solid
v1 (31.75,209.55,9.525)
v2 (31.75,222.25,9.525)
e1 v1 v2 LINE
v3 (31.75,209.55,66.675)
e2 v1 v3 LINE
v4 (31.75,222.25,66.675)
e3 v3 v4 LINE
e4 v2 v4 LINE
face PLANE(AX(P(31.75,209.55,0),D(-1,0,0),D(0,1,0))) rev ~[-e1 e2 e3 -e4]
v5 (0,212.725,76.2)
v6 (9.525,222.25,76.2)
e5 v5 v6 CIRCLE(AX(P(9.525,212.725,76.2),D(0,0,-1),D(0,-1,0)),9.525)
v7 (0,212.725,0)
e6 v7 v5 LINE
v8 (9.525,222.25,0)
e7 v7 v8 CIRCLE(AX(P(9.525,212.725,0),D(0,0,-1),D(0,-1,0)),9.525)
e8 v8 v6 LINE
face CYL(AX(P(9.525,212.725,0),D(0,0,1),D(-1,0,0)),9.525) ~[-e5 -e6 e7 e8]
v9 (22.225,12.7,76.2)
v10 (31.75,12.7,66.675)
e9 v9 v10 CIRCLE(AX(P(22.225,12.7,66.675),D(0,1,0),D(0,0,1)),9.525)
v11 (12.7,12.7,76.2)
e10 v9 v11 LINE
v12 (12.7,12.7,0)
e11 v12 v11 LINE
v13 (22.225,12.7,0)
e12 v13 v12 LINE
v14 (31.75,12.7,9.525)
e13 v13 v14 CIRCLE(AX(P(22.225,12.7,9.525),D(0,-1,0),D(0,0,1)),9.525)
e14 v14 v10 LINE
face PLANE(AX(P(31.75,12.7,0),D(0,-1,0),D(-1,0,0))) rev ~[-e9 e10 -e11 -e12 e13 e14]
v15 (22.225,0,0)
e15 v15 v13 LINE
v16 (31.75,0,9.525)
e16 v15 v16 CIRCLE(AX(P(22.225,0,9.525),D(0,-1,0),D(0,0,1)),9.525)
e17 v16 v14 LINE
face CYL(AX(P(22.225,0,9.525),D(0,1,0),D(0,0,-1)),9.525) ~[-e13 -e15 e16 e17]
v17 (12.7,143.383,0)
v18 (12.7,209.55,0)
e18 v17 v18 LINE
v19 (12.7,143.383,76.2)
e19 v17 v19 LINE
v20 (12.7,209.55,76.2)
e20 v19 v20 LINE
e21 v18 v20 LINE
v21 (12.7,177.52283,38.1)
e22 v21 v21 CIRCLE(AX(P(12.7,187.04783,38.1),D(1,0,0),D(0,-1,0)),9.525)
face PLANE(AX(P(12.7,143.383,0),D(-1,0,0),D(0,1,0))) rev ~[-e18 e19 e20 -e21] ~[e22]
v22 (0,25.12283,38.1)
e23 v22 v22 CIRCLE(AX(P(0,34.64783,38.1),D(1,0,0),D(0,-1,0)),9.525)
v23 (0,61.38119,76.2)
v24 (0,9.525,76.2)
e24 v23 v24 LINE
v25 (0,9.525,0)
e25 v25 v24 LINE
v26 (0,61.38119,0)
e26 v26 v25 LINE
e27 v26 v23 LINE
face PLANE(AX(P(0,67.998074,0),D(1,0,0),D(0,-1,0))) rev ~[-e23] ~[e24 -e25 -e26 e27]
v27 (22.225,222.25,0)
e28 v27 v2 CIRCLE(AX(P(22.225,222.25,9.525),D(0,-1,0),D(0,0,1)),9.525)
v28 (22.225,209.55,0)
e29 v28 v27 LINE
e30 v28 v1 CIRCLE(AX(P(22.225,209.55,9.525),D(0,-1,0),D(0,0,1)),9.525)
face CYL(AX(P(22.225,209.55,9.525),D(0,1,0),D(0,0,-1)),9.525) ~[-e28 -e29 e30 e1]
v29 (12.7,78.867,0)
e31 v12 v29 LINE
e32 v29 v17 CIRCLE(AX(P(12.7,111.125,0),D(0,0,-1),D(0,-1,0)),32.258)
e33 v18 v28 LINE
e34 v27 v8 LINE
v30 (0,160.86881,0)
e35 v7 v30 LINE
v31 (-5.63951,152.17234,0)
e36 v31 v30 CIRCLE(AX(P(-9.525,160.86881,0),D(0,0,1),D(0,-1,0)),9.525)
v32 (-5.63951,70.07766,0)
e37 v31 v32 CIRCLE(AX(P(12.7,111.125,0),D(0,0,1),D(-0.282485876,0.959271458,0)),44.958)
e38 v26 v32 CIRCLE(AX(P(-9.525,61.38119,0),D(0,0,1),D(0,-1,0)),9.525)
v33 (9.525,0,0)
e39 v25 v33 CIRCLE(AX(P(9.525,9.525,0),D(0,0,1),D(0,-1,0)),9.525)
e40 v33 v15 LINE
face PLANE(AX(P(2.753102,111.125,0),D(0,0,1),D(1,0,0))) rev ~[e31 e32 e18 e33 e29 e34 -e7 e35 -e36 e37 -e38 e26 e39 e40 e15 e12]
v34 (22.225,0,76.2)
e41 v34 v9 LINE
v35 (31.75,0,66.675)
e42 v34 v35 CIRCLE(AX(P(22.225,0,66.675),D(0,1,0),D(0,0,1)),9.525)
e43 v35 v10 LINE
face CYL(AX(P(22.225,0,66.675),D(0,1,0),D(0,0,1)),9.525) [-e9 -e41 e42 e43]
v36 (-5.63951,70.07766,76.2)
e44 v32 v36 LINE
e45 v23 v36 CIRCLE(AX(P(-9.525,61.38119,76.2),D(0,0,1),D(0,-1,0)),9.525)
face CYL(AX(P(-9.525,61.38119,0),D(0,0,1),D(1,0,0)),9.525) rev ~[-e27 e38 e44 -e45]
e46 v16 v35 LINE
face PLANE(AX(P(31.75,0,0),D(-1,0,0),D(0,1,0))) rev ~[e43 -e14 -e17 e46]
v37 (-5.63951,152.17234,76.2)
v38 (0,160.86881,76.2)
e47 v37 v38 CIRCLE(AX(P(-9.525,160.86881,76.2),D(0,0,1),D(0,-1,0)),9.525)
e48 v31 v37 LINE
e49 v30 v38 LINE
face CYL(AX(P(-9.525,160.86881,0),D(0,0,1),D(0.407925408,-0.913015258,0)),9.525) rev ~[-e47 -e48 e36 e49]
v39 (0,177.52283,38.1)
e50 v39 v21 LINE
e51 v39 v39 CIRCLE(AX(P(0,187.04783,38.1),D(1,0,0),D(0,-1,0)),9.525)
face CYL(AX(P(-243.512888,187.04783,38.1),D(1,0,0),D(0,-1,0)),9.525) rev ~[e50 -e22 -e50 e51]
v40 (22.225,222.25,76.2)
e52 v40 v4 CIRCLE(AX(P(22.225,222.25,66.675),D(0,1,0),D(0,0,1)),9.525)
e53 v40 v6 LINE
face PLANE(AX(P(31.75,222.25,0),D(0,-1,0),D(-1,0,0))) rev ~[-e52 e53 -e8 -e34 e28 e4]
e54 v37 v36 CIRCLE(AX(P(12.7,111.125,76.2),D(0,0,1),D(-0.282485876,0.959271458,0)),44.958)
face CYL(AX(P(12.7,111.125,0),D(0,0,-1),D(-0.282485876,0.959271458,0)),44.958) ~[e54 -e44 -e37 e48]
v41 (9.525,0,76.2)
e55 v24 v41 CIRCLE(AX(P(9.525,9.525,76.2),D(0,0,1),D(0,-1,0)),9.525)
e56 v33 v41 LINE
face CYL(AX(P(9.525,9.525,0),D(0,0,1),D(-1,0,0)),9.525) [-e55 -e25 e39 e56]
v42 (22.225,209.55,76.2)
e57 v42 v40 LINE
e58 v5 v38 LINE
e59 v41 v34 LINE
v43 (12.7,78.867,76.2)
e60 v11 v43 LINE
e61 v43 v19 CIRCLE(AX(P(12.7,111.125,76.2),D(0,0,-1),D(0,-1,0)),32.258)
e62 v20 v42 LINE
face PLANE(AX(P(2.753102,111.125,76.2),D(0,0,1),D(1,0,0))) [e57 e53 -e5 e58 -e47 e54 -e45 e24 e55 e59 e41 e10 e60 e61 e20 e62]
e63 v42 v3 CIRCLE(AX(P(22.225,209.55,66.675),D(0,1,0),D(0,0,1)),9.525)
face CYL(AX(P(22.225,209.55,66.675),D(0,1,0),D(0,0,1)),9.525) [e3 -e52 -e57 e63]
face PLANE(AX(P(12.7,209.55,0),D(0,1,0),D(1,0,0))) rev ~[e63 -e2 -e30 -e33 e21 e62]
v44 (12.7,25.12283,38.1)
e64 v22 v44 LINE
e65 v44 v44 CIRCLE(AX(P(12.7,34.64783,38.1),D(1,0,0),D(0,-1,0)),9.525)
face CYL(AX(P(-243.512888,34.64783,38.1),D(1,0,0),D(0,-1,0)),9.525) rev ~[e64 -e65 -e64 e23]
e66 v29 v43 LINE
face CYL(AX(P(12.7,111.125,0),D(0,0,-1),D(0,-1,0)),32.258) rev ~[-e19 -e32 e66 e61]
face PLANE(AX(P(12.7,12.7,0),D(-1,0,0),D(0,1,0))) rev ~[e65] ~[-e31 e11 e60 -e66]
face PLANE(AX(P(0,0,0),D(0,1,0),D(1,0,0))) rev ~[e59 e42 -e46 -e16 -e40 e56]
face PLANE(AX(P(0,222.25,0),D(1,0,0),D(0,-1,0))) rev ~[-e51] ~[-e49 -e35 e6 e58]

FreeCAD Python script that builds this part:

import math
import FreeCAD as App
import Part
import Sketcher
from FreeCAD import Vector
Q = App.Units.Quantity


def edges_at(feature, points):
    """Names of the edges that pass closest to the given points."""
    edges = feature.Shape.Edges
    near = lambda p: min(range(len(edges)), key=lambda i: edges[i].distToShape(Part.Vertex(*p))[0])
    return sorted({f"Edge{near(p) + 1}" for p in points})

doc = App.newDocument("Part")
params = doc.addObject("Spreadsheet::Sheet", "Params")
for row, (alias, value) in enumerate([
    ("sketch1_radius", "1.27 in"),
    ("sketch1_radius2", "1.77 in"),
    ("sketch1_height", "0.5 in"),
    ("sketch1_width", "1.25 in"),
    ("sketch1_width2", "0.75 in"),
    ("pad1_length", "3 in"),
    ("sketch2_diameter", "0.75 in"),
    ("hole_diameter", "0.75 in"),
    ("fillet_radius", "0.375 in"),
], start=1):
    params.set(f"A{row}", alias)
    params.set(f"B{row}", "=" + value)
    params.setAlias(f"B{row}", alias)

body = doc.addObject("PartDesign::Body", "Body")

# Sketch on XY plane
sketch1 = doc.addObject("Sketcher::SketchObject", "Sketch")
body.addObject(sketch1)
sketch1.AttachmentSupport = (doc.XY_Plane, [""])
sketch1.MapMode = "FlatFace"
sketch1.addGeometry([
    Part.LineSegment(Vector(0, 68, 0), Vector(0, 0, 0)),  # 0
    Part.LineSegment(Vector(0, 0, 0), Vector(32, 0, 0)),  # 1
    Part.LineSegment(Vector(32, 0, 0), Vector(32, 13, 0)),  # 2
    Part.LineSegment(Vector(32, 13, 0), Vector(13, 13, 0)),  # 3
    Part.LineSegment(Vector(13, 13, 0), Vector(13, 79, 0)),  # 4
    Part.ArcOfCircle(Part.Circle(Vector(13, 111, 0), Vector(0, 0, 1), 32), math.radians(90), math.radians(270)),  # 5
    Part.LineSegment(Vector(13, 143, 0), Vector(13, 210, 0)),  # 6
    Part.LineSegment(Vector(13, 210, 0), Vector(32, 210, 0)),  # 7
    Part.LineSegment(Vector(32, 210, 0), Vector(32, 222, 0)),  # 8
    Part.LineSegment(Vector(32, 222, 0), Vector(0, 222, 0)),  # 9
    Part.LineSegment(Vector(0, 222, 0), Vector(0, 154, 0)),  # 10
    Part.ArcOfCircle(Part.Circle(Vector(13, 111, 0), Vector(0, 0, 1), 45), math.radians(106), math.radians(254)),  # 11
], False)
sketch1.addConstraint([
    Sketcher.Constraint("Coincident", 0, 2, 1, 1),
    Sketcher.Constraint("Coincident", 1, 2, 2, 1),
    Sketcher.Constraint("Coincident", 2, 2, 3, 1),
    Sketcher.Constraint("Coincident", 3, 2, 4, 1),
    Sketcher.Constraint("Coincident", 4, 2, 5, 2),
    Sketcher.Constraint("Coincident", 5, 1, 6, 1),
    Sketcher.Constraint("Coincident", 6, 2, 7, 1),
    Sketcher.Constraint("Coincident", 7, 2, 8, 1),
    Sketcher.Constraint("Coincident", 8, 2, 9, 1),
    Sketcher.Constraint("Coincident", 9, 2, 10, 1),
    Sketcher.Constraint("Coincident", 10, 2, 11, 1),
    Sketcher.Constraint("Coincident", 11, 2, 0, 1),
    Sketcher.Constraint("Vertical", 0),
    Sketcher.Constraint("Horizontal", 1),
    Sketcher.Constraint("Vertical", 2),
    Sketcher.Constraint("Horizontal", 3),
    Sketcher.Constraint("Vertical", 4),
    Sketcher.Constraint("Vertical", 6),
    Sketcher.Constraint("Horizontal", 7),
    Sketcher.Constraint("Vertical", 8),
    Sketcher.Constraint("Horizontal", 9),
    Sketcher.Constraint("Vertical", 10),
    Sketcher.Constraint("Coincident", 0, 2, -1, 1),
    Sketcher.Constraint("Coincident", 11, 3, 5, 3),
    Sketcher.Constraint("PointOnObject", 9, 2, -2),
    Sketcher.Constraint("Vertical", 11, 3, 3, 2),
    Sketcher.Constraint("Vertical", 4, 2, 5, 1),
    Sketcher.Constraint("Vertical", 2, 2, 7, 2),
    Sketcher.Constraint("Equal", 4, 6),
    Sketcher.Constraint("Equal", 2, 8),
    Sketcher.Constraint("Radius", 5, Q("1.27 in")),
    Sketcher.Constraint("Radius", 11, Q("1.77 in")),
    Sketcher.Constraint("DistanceY", 2, 1, 2, 2, Q("0.5 in")),
    Sketcher.Constraint("DistanceX", 1, 1, 1, 2, Q("1.25 in")),
    Sketcher.Constraint("DistanceX", 3, 2, 3, 1, Q("0.75 in")),
    Sketcher.Constraint("DistanceY", 4, 1, 4, 2, Q("2.605 in")),
])
sketch1.setExpression("Constraints[30]", "Params.sketch1_radius")
sketch1.setExpression("Constraints[31]", "Params.sketch1_radius2")
sketch1.setExpression("Constraints[32]", "Params.sketch1_height")
sketch1.setExpression("Constraints[33]", "Params.sketch1_width")
sketch1.setExpression("Constraints[34]", "Params.sketch1_width2")
pad1 = doc.addObject("PartDesign::Pad", "Pad")
body.addObject(pad1)
pad1.Profile = sketch1
pad1.setExpression("Length", "Params.pad1_length")

# Sketch on YZ plane
sketch2 = doc.addObject("Sketcher::SketchObject", "Sketch001")
body.addObject(sketch2)
sketch2.AttachmentSupport = (doc.YZ_Plane, [""])
sketch2.MapMode = "FlatFace"
sketch2.addGeometry([
    Part.Circle(Vector(187, 38, 0), Vector(0, 0, 1), 10),
    Part.Circle(Vector(35, 38, 0), Vector(0, 0, 1), 10),
], False)
sketch2.addConstraint([
    Sketcher.Constraint("Equal", 0, 1),
    Sketcher.Constraint("Horizontal", 0, 3, 1, 3),
    Sketcher.Constraint("Diameter", 0, Q("0.75 in")),
    Sketcher.Constraint("DistanceX", 1, 3, 0, 3, Q("6 in")),
    Sketcher.Constraint("DistanceY", -1, 1, 0, 3, Q("1.5 in")),
    Sketcher.Constraint("DistanceX", -1, 1, 0, 3, Q("187.04783 mm")),
])
sketch2.setExpression("Constraints[2]", "Params.sketch2_diameter")
doc.recompute()
hole = doc.addObject("PartDesign::Hole", "Hole")
body.addObject(hole)
hole.Profile = sketch2
hole.ThreadType = "None"
hole.setExpression("Diameter", "Params.hole_diameter")
hole.DepthType = "ThroughAll"
hole.Reversed = True
doc.recompute()

fillet = doc.addObject("PartDesign::Fillet", "Fillet")
body.addObject(fillet)
fillet.Base = (hole, edges_at(hole, [
    (0, 67.998, 38.1),
    (0, 154.252, 38.1),
    (0, 0, 38.1),
    (31.75, 6.35, 76.2),
    (31.75, 6.35, 0),
    (31.75, 215.9, 76.2),
    (31.75, 215.9, 0),
    (0, 222.25, 38.1),
]))
fillet.setExpression("Radius", "Params.fillet_radius")

doc.recompute()
